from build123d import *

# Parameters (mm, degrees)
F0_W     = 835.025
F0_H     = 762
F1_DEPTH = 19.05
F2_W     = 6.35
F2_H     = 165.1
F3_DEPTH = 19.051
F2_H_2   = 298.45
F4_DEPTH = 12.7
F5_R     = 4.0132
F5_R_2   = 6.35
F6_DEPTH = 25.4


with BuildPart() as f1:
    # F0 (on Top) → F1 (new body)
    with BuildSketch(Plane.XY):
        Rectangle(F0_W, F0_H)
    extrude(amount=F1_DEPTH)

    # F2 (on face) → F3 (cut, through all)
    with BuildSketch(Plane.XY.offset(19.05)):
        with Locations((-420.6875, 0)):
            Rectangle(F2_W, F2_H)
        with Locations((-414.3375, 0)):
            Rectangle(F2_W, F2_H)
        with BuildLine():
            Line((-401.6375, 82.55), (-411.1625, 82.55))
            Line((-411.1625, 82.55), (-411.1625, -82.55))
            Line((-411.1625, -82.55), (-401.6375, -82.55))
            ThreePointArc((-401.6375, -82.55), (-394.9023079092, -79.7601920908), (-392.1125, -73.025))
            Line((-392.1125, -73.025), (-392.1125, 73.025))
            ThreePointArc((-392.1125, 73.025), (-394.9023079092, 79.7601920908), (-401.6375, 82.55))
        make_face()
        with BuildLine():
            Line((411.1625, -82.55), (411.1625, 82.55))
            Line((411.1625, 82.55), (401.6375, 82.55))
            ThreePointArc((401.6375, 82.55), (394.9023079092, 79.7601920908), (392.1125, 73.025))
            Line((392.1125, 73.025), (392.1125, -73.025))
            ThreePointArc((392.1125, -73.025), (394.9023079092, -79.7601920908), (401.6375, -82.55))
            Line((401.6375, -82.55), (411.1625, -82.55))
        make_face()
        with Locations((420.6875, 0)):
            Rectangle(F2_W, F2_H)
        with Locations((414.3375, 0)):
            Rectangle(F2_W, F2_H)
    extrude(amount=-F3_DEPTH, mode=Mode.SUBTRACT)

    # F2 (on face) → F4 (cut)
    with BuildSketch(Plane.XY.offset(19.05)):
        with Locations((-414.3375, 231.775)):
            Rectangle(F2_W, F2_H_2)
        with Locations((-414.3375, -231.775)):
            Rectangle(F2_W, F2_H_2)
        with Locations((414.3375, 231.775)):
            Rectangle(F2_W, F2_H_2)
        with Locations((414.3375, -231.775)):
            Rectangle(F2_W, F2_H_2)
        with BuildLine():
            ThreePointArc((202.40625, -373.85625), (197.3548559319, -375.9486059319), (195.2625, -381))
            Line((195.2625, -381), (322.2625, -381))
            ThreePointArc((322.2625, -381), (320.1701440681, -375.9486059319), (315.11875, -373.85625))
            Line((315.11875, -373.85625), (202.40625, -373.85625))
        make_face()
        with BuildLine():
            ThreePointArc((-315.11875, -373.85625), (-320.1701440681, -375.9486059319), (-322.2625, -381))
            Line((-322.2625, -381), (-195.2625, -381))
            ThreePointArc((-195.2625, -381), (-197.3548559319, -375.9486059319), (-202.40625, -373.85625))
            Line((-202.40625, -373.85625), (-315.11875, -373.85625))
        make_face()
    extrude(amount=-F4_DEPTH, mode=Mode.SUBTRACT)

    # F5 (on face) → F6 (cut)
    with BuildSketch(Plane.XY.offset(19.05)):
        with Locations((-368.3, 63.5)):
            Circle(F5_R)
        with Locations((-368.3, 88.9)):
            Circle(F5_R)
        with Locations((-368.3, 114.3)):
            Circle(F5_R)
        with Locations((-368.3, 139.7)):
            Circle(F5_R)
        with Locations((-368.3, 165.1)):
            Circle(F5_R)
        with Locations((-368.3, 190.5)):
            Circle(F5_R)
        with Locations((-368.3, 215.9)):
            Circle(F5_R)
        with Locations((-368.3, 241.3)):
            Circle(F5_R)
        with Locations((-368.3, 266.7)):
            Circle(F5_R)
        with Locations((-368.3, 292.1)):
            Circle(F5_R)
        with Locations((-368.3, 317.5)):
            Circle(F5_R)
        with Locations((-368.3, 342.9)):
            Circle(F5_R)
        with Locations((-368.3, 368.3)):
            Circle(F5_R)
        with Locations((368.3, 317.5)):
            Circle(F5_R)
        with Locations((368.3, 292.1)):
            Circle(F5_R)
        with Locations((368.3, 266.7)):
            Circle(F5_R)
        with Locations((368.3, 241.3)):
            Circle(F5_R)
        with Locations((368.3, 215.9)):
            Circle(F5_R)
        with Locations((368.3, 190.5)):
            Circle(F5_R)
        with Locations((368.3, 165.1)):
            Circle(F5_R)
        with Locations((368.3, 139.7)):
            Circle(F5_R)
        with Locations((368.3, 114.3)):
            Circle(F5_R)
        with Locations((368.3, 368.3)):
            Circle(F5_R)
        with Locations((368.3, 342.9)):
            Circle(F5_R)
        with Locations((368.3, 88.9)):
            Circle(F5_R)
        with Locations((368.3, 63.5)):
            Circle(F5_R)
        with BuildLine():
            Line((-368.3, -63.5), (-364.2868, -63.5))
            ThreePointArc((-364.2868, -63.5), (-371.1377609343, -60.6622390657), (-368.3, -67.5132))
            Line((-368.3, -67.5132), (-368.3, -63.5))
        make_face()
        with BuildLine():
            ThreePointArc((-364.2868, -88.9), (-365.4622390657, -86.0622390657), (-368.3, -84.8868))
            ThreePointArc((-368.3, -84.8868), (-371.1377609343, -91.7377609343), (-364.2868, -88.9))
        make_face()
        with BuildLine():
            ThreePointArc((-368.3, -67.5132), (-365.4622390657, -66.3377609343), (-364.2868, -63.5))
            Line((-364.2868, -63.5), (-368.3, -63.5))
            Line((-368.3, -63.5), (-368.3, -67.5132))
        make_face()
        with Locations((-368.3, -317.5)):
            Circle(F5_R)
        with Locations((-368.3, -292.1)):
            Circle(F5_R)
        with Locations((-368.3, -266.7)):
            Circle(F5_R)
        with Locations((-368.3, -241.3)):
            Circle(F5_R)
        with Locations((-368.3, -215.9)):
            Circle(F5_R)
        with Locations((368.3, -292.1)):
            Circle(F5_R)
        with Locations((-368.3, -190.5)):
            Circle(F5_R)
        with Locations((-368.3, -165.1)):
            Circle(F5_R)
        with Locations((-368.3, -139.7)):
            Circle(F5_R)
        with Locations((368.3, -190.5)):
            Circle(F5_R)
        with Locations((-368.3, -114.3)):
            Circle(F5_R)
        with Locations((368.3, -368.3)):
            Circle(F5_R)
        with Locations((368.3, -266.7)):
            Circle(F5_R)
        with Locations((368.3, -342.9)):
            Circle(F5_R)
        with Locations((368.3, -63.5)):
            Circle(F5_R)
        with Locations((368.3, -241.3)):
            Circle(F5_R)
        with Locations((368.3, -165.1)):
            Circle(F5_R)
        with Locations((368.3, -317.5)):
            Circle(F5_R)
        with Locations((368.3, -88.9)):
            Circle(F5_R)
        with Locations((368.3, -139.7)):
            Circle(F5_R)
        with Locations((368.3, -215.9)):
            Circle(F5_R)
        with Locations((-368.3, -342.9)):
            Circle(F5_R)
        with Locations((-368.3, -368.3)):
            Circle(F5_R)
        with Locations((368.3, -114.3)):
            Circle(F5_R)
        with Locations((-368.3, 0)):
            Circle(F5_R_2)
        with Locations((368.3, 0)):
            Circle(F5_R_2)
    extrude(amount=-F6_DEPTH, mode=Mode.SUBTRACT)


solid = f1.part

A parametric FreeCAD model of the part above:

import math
import FreeCAD as App
import Part
import Sketcher
from FreeCAD import Vector
Q = App.Units.Quantity


def add_polygon(sketch, points):
    """Adds a closed chain of lines whose ends are joined by coincident constraints."""
    first, n = sketch.GeometryCount, len(points)
    for a, b in zip(points, points[1:] + points[:1]):
        sketch.addGeometry(Part.LineSegment(App.Vector(*a, 0), App.Vector(*b, 0)), False)
    for i in range(n):
        sketch.addConstraint(Sketcher.Constraint("Coincident", first + i, 2, first + (i + 1) % n, 1))

doc = App.newDocument("Part")
body = doc.addObject("PartDesign::Body", "Body")

sketch1 = body.newObject("Sketcher::SketchObject", "Sketch")
sketch1.AttachmentSupport = (doc.getObject("XY_Plane"), [""])
sketch1.MapMode = "FlatFace"
add_polygon(sketch1, [(-418, 381), (-418, -381), (418, -381), (418, 381)])
sketch1.addConstraint(Sketcher.Constraint("Vertical", 0))
sketch1.addConstraint(Sketcher.Constraint("Horizontal", 1))
sketch1.addConstraint(Sketcher.Constraint("Vertical", 2))
sketch1.addConstraint(Sketcher.Constraint("Horizontal", 3))
sketch1.addConstraint(Sketcher.Constraint("Symmetric", 0, 2, 2, 2, -1, 1))
sketch1.addConstraint(Sketcher.Constraint("DistanceY", 0, 2, 0, 1, Q("30 in")))
sketch1.addConstraint(Sketcher.Constraint("DistanceX", 1, 1, 1, 2, Q("32.875 in")))
pad1 = body.newObject("PartDesign::Pad", "Pad")
pad1.Profile = sketch1
pad1.Length = Q("0.75 in")

sketch2 = body.newObject("Sketcher::SketchObject", "Sketch001")
sketch2.AttachmentSupport = (doc.getObject("XY_Plane"), [""])
sketch2.MapMode = "FlatFace"
sketch2.AttachmentOffset = App.Placement(Vector(0, 0, 0.75 * 25.4), App.Rotation())
sketch2.addGeometry(Part.LineSegment(Vector(-424, 83, 0), Vector(-424, -83, 0)), False)
sketch2.addGeometry(Part.LineSegment(Vector(-424, -83, 0), Vector(-402, -83, 0)), False)
sketch2.addGeometry(Part.ArcOfCircle(Part.Circle(Vector(-402, -73, 0), Vector(0, 0, 1), 10), math.radians(-90), math.radians(0)), False)
sketch2.addGeometry(Part.LineSegment(Vector(-392, -73, 0), Vector(-392, 73, 0)), False)
sketch2.addGeometry(Part.ArcOfCircle(Part.Circle(Vector(-402, 73, 0), Vector(0, 0, 1), 10), math.radians(0), math.radians(90)), False)
sketch2.addGeometry(Part.LineSegment(Vector(-402, 83, 0), Vector(-424, 83, 0)), False)
sketch2.addGeometry(Part.ArcOfCircle(Part.Circle(Vector(402, 73, 0), Vector(0, 0, 1), 10), math.radians(90), math.radians(180)), False)
sketch2.addGeometry(Part.LineSegment(Vector(392, 73, 0), Vector(392, -73, 0)), False)
sketch2.addGeometry(Part.ArcOfCircle(Part.Circle(Vector(402, -73, 0), Vector(0, 0, 1), 10), math.radians(180), math.radians(270)), False)
sketch2.addGeometry(Part.LineSegment(Vector(402, -83, 0), Vector(424, -83, 0)), False)
sketch2.addGeometry(Part.LineSegment(Vector(424, -83, 0), Vector(424, 83, 0)), False)
sketch2.addGeometry(Part.LineSegment(Vector(424, 83, 0), Vector(402, 83, 0)), False)
sketch2.addConstraint(Sketcher.Constraint("Coincident", 0, 2, 1, 1))
sketch2.addConstraint(Sketcher.Constraint("Tangent", 1, 2, 2, 1))
sketch2.addConstraint(Sketcher.Constraint("Tangent", 2, 2, 3, 1))
sketch2.addConstraint(Sketcher.Constraint("Tangent", 3, 2, 4, 1))
sketch2.addConstraint(Sketcher.Constraint("Tangent", 4, 2, 5, 1))
sketch2.addConstraint(Sketcher.Constraint("Coincident", 5, 2, 0, 1))
sketch2.addConstraint(Sketcher.Constraint("Tangent", 6, 2, 7, 1))
sketch2.addConstraint(Sketcher.Constraint("Tangent", 7, 2, 8, 1))
sketch2.addConstraint(Sketcher.Constraint("Tangent", 8, 2, 9, 1))
sketch2.addConstraint(Sketcher.Constraint("Coincident", 9, 2, 10, 1))
sketch2.addConstraint(Sketcher.Constraint("Coincident", 10, 2, 11, 1))
sketch2.addConstraint(Sketcher.Constraint("Tangent", 11, 2, 6, 1))
sketch2.addConstraint(Sketcher.Constraint("Vertical", 0))
sketch2.addConstraint(Sketcher.Constraint("Horizontal", 1))
sketch2.addConstraint(Sketcher.Constraint("Vertical", 3))
sketch2.addConstraint(Sketcher.Constraint("Horizontal", 5))
sketch2.addConstraint(Sketcher.Constraint("Vertical", 7))
sketch2.addConstraint(Sketcher.Constraint("Horizontal", 9))
sketch2.addConstraint(Sketcher.Constraint("Vertical", 10))
sketch2.addConstraint(Sketcher.Constraint("Horizontal", 11))
sketch2.addConstraint(Sketcher.Constraint("Equal", 2, 4))
sketch2.addConstraint(Sketcher.Constraint("Equal", 4, 6))
sketch2.addConstraint(Sketcher.Constraint("Equal", 6, 8))
sketch2.addConstraint(Sketcher.Constraint("Symmetric", 2, 3, 6, 3, -1, 1))
sketch2.addConstraint(Sketcher.Constraint("Symmetric", 5, 2, 9, 2, -1, 1))
sketch2.addConstraint(Sketcher.Constraint("Horizontal", 4, 3, 6, 3))
sketch2.addConstraint(Sketcher.Constraint("DistanceY", 0, 2, 0, 1, Q("6.5 in")))
sketch2.addConstraint(Sketcher.Constraint("Radius", 2, Q("0.375 in")))
sketch2.addConstraint(Sketcher.Constraint("DistanceX", 0, 2, 8, 3, Q("32.5 in")))
sketch2.addConstraint(Sketcher.Constraint("DistanceX", 1, 1, 1, 2, Q("0.875 in")))
pocket1 = body.newObject("PartDesign::Pocket", "Pocket")
pocket1.Profile = sketch2
pocket1.Type = "ThroughAll"

sketch3 = body.newObject("Sketcher::SketchObject", "Sketch002")
sketch3.AttachmentSupport = (doc.getObject("XY_Plane"), [""])
sketch3.MapMode = "FlatFace"
sketch3.AttachmentOffset = App.Placement(Vector(0, 0, 0.75 * 25.4), App.Rotation())
add_polygon(sketch3, [(-418, 381), (-418, 83), (-411, 83), (-411, 381)])
add_polygon(sketch3, [(-418, -83), (-418, -381), (-411, -381), (-411, -83)])
add_polygon(sketch3, [(411, 381), (411, 83), (418, 83), (418, 381)])
add_polygon(sketch3, [(411, -83), (411, -381), (418, -381), (418, -83)])
sketch3.addGeometry(Part.ArcOfCircle(Part.Circle(Vector(202, -381, 0), Vector(0, 0, 1), 7), math.radians(90), math.radians(180)), False)
sketch3.addGeometry(Part.LineSegment(Vector(195, -381, 0), Vector(322, -381, 0)), False)
sketch3.addGeometry(Part.ArcOfCircle(Part.Circle(Vector(315, -381, 0), Vector(0, 0, 1), 7), math.radians(0), math.radians(90)), False)
sketch3.addGeometry(Part.LineSegment(Vector(315, -374, 0), Vector(202, -374, 0)), False)
sketch3.addGeometry(Part.ArcOfCircle(Part.Circle(Vector(-315, -381, 0), Vector(0, 0, 1), 7), math.radians(90), math.radians(180)), False)
sketch3.addGeometry(Part.LineSegment(Vector(-322, -381, 0), Vector(-195, -381, 0)), False)
sketch3.addGeometry(Part.ArcOfCircle(Part.Circle(Vector(-202, -381, 0), Vector(0, 0, 1), 7), math.radians(0), math.radians(90)), False)
sketch3.addGeometry(Part.LineSegment(Vector(-202, -374, 0), Vector(-315, -374, 0)), False)
sketch3.addConstraint(Sketcher.Constraint("Coincident", 16, 2, 17, 1))
sketch3.addConstraint(Sketcher.Constraint("Coincident", 17, 2, 18, 1))
sketch3.addConstraint(Sketcher.Constraint("Tangent", 18, 2, 19, 1))
sketch3.addConstraint(Sketcher.Constraint("Tangent", 19, 2, 16, 1))
sketch3.addConstraint(Sketcher.Constraint("Coincident", 20, 2, 21, 1))
sketch3.addConstraint(Sketcher.Constraint("Coincident", 21, 2, 22, 1))
sketch3.addConstraint(Sketcher.Constraint("Tangent", 22, 2, 23, 1))
sketch3.addConstraint(Sketcher.Constraint("Tangent", 23, 2, 20, 1))
sketch3.addConstraint(Sketcher.Constraint("Vertical", 0))
sketch3.addConstraint(Sketcher.Constraint("Horizontal", 1))
sketch3.addConstraint(Sketcher.Constraint("Vertical", 2))
sketch3.addConstraint(Sketcher.Constraint("Horizontal", 3))
sketch3.addConstraint(Sketcher.Constraint("Vertical", 4))
sketch3.addConstraint(Sketcher.Constraint("Horizontal", 5))
sketch3.addConstraint(Sketcher.Constraint("Vertical", 6))
sketch3.addConstraint(Sketcher.Constraint("Horizontal", 7))
sketch3.addConstraint(Sketcher.Constraint("Vertical", 8))
sketch3.addConstraint(Sketcher.Constraint("Horizontal", 9))
sketch3.addConstraint(Sketcher.Constraint("Vertical", 10))
sketch3.addConstraint(Sketcher.Constraint("Horizontal", 11))
sketch3.addConstraint(Sketcher.Constraint("Vertical", 12))
sketch3.addConstraint(Sketcher.Constraint("Horizontal", 13))
sketch3.addConstraint(Sketcher.Constraint("Vertical", 14))
sketch3.addConstraint(Sketcher.Constraint("Horizontal", 15))
sketch3.addConstraint(Sketcher.Constraint("Horizontal", 17))
sketch3.addConstraint(Sketcher.Constraint("Horizontal", 19))
sketch3.addConstraint(Sketcher.Constraint("Horizontal", 21))
sketch3.addConstraint(Sketcher.Constraint("Horizontal", 23))
sketch3.addConstraint(Sketcher.Constraint("Equal", 16, 18))
sketch3.addConstraint(Sketcher.Constraint("Equal", 18, 20))
sketch3.addConstraint(Sketcher.Constraint("Equal", 20, 22))
sketch3.addConstraint(Sketcher.Constraint("Symmetric", 6, 2, 8, 2, -1, 1))
sketch3.addConstraint(Sketcher.Constraint("Symmetric", 4, 2, 10, 2, -1, 1))
sketch3.addConstraint(Sketcher.Constraint("Symmetric", 2, 2, 12, 2, -1, 1))
sketch3.addConstraint(Sketcher.Constraint("Symmetric", 0, 2, 14, 2, -1, 1))
sketch3.addConstraint(Sketcher.Constraint("Symmetric", 18, 3, 20, 3, -2))
sketch3.addConstraint(Sketcher.Constraint("Symmetric", 1, 2, 8, 2, -2))
sketch3.addConstraint(Sketcher.Constraint("Symmetric", 3, 2, 10, 2, -2))
sketch3.addConstraint(Sketcher.Constraint("Symmetric", 16, 2, 21, 2, -2))
sketch3.addConstraint(Sketcher.Constraint("Horizontal", 22, 3, 4, 2))
sketch3.addConstraint(Sketcher.Constraint("Horizontal", 13, 2, 16, 2))
sketch3.addConstraint(Sketcher.Constraint("DistanceX", 17, 1, 17, 2, Q("5 in")))
sketch3.addConstraint(Sketcher.Constraint("DistanceY", 16, 3, -1, 1, Q("15 in")))
sketch3.addConstraint(Sketcher.Constraint("Radius", 16, Q("0.28125 in")))
sketch3.addConstraint(Sketcher.Constraint("DistanceX", 1, 1, 1, 2, Q("0.25 in")))
sketch3.addConstraint(Sketcher.Constraint("DistanceY", 0, 2, 0, 1, Q("11.75 in")))
sketch3.addConstraint(Sketcher.Constraint("DistanceX", 16, 2, 12, 2, Q("8.5 in")))
sketch3.addConstraint(Sketcher.Constraint("DistanceX", -1, 1, 16, 3, Q("7.96875 in")))
pocket2 = body.newObject("PartDesign::Pocket", "Pocket001")
pocket2.Profile = sketch3
pocket2.Length = Q("0.5 in")

sketch4 = body.newObject("Sketcher::SketchObject", "Sketch003")
sketch4.AttachmentSupport = (doc.getObject("XY_Plane"), [""])
sketch4.MapMode = "FlatFace"
sketch4.AttachmentOffset = App.Placement(Vector(0, 0, 0.75 * 25.4), App.Rotation())
sketch4.addGeometry(Part.Circle(Vector(-368.3, 63.5, 0), Vector(0, 0, 1), 4), False)
sketch4.addGeometry(Part.Circle(Vector(-368.3, 88.9, 0), Vector(0, 0, 1), 4), False)
sketch4.addGeometry(Part.Circle(Vector(-368.3, 114.3, 0), Vector(0, 0, 1), 4), False)
sketch4.addGeometry(Part.Circle(Vector(-368.3, 139.7, 0), Vector(0, 0, 1), 4), False)
sketch4.addGeometry(Part.Circle(Vector(-368.3, 165.1, 0), Vector(0, 0, 1), 4), False)
sketch4.addGeometry(Part.Circle(Vector(-368.3, 190.5, 0), Vector(0, 0, 1), 4), False)
sketch4.addGeometry(Part.Circle(Vector(-368.3, 215.9, 0), Vector(0, 0, 1), 4), False)
sketch4.addGeometry(Part.Circle(Vector(-368.3, 241.3, 0), Vector(0, 0, 1), 4), False)
sketch4.addGeometry(Part.Circle(Vector(-368.3, 266.7, 0), Vector(0, 0, 1), 4), False)
sketch4.addGeometry(Part.Circle(Vector(-368.3, 292.1, 0), Vector(0, 0, 1), 4), False)
sketch4.addGeometry(Part.Circle(Vector(-368.3, 317.5, 0), Vector(0, 0, 1), 4), False)
sketch4.addGeometry(Part.Circle(Vector(-368.3, 342.9, 0), Vector(0, 0, 1), 4), False)
sketch4.addGeometry(Part.Circle(Vector(-368.3, 368.3, 0), Vector(0, 0, 1), 4), False)
sketch4.addGeometry(Part.Circle(Vector(368.3, 317.5, 0), Vector(0, 0, 1), 4), False)
sketch4.addGeometry(Part.Circle(Vector(368.3, 292.1, 0), Vector(0, 0, 1), 4), False)
sketch4.addGeometry(Part.Circle(Vector(368.3, 266.7, 0), Vector(0, 0, 1), 4), False)
sketch4.addGeometry(Part.Circle(Vector(368.3, 241.3, 0), Vector(0, 0, 1), 4), False)
sketch4.addGeometry(Part.Circle(Vector(368.3, 215.9, 0), Vector(0, 0, 1), 4), False)
sketch4.addGeometry(Part.Circle(Vector(368.3, 190.5, 0), Vector(0, 0, 1), 4), False)
sketch4.addGeometry(Part.Circle(Vector(368.3, 165.1, 0), Vector(0, 0, 1), 4), False)
sketch4.addGeometry(Part.Circle(Vector(368.3, 139.7, 0), Vector(0, 0, 1), 4), False)
sketch4.addGeometry(Part.Circle(Vector(368.3, 114.3, 0), Vector(0, 0, 1), 4), False)
sketch4.addGeometry(Part.Circle(Vector(368.3, 368.3, 0), Vector(0, 0, 1), 4), False)
sketch4.addGeometry(Part.Circle(Vector(368.3, 342.9, 0), Vector(0, 0, 1), 4), False)
sketch4.addGeometry(Part.Circle(Vector(368.3, 88.9, 0), Vector(0, 0, 1), 4), False)
sketch4.addGeometry(Part.Circle(Vector(368.3, 63.5, 0), Vector(0, 0, 1), 4), False)
sketch4.addGeometry(Part.ArcOfCircle(Part.Circle(Vector(-368.3, -63.5, 0), Vector(0, 0, 1), 4), math.radians(0), math.radians(270)), False)
sketch4.addGeometry(Part.ArcOfCircle(Part.Circle(Vector(-368.3, -63.5, 0), Vector(0, 0, 1), 4), math.radians(-90), math.radians(0)), False)
sketch4.addGeometry(Part.ArcOfCircle(Part.Circle(Vector(-368.3, -88.9, 0), Vector(0, 0, 1), 4), math.radians(0), math.radians(90)), False)
sketch4.addGeometry(Part.ArcOfCircle(Part.Circle(Vector(-368.3, -88.9, 0), Vector(0, 0, 1), 4), math.radians(90), math.radians(360)), False)
sketch4.addGeometry(Part.Circle(Vector(-368.3, -317.5, 0), Vector(0, 0, 1), 4), False)
sketch4.addGeometry(Part.Circle(Vector(-368.3, -292.1, 0), Vector(0, 0, 1), 4), False)
sketch4.addGeometry(Part.Circle(Vector(-368.3, -266.7, 0), Vector(0, 0, 1), 4), False)
sketch4.addGeometry(Part.Circle(Vector(-368.3, -241.3, 0), Vector(0, 0, 1), 4), False)
sketch4.addGeometry(Part.Circle(Vector(-368.3, -215.9, 0), Vector(0, 0, 1), 4), False)
sketch4.addGeometry(Part.Circle(Vector(368.3, -292.1, 0), Vector(0, 0, 1), 4), False)
sketch4.addGeometry(Part.Circle(Vector(-368.3, -190.5, 0), Vector(0, 0, 1), 4), False)
sketch4.addGeometry(Part.Circle(Vector(-368.3, -165.1, 0), Vector(0, 0, 1), 4), False)
sketch4.addGeometry(Part.Circle(Vector(-368.3, -139.7, 0), Vector(0, 0, 1), 4), False)
sketch4.addGeometry(Part.Circle(Vector(368.3, -190.5, 0), Vector(0, 0, 1), 4), False)
sketch4.addGeometry(Part.Circle(Vector(-368.3, -114.3, 0), Vector(0, 0, 1), 4), False)
sketch4.addGeometry(Part.Circle(Vector(368.3, -368.3, 0), Vector(0, 0, 1), 4), False)
sketch4.addGeometry(Part.Circle(Vector(368.3, -266.7, 0), Vector(0, 0, 1), 4), False)
sketch4.addGeometry(Part.Circle(Vector(368.3, -342.9, 0), Vector(0, 0, 1), 4), False)
sketch4.addGeometry(Part.Circle(Vector(368.3, -63.5, 0), Vector(0, 0, 1), 4), False)
sketch4.addGeometry(Part.Circle(Vector(368.3, -241.3, 0), Vector(0, 0, 1), 4), False)
sketch4.addGeometry(Part.Circle(Vector(368.3, -165.1, 0), Vector(0, 0, 1), 4), False)
sketch4.addGeometry(Part.Circle(Vector(368.3, -317.5, 0), Vector(0, 0, 1), 4), False)
sketch4.addGeometry(Part.Circle(Vector(368.3, -88.9, 0), Vector(0, 0, 1), 4), False)
sketch4.addGeometry(Part.Circle(Vector(368.3, -139.7, 0), Vector(0, 0, 1), 4), False)
sketch4.addGeometry(Part.Circle(Vector(368.3, -215.9, 0), Vector(0, 0, 1), 4), False)
sketch4.addGeometry(Part.Circle(Vector(-368.3, -342.9, 0), Vector(0, 0, 1), 4), False)
sketch4.addGeometry(Part.Circle(Vector(-368.3, -368.3, 0), Vector(0, 0, 1), 4), False)
sketch4.addGeometry(Part.Circle(Vector(368.3, -114.3, 0), Vector(0, 0, 1), 4), False)
sketch4.addGeometry(Part.Circle(Vector(-368.3, 0, 0), Vector(0, 0, 1), 6.3), False)
sketch4.addGeometry(Part.Circle(Vector(368.3, 0, 0), Vector(0, 0, 1), 6.3), False)
sketch4.addConstraint(Sketcher.Constraint("Tangent", 26, 1, 27, 2))
sketch4.addConstraint(Sketcher.Constraint("Coincident", 27, 1, 26, 2))
sketch4.addConstraint(Sketcher.Constraint("Tangent", 28, 1, 29, 2))
sketch4.addConstraint(Sketcher.Constraint("Coincident", 29, 1, 28, 2))
sketch4.addConstraint(Sketcher.Constraint("Equal", 0, 1))
sketch4.addConstraint(Sketcher.Constraint("Equal", 1, 2))
sketch4.addConstraint(Sketcher.Constraint("Equal", 2, 3))
sketch4.addConstraint(Sketcher.Constraint("Equal", 3, 4))
sketch4.addConstraint(Sketcher.Constraint("Equal", 4, 5))
sketch4.addConstraint(Sketcher.Constraint("Equal", 5, 6))
sketch4.addConstraint(Sketcher.Constraint("Equal", 6, 7))
sketch4.addConstraint(Sketcher.Constraint("Equal", 7, 8))
sketch4.addConstraint(Sketcher.Constraint("Equal", 8, 9))
sketch4.addConstraint(Sketcher.Constraint("Equal", 9, 10))
sketch4.addConstraint(Sketcher.Constraint("Equal", 10, 11))
sketch4.addConstraint(Sketcher.Constraint("Equal", 11, 12))
sketch4.addConstraint(Sketcher.Constraint("Equal", 12, 13))
sketch4.addConstraint(Sketcher.Constraint("Equal", 13, 14))
sketch4.addConstraint(Sketcher.Constraint("Equal", 14, 15))
sketch4.addConstraint(Sketcher.Constraint("Equal", 15, 16))
sketch4.addConstraint(Sketcher.Constraint("Equal", 16, 17))
sketch4.addConstraint(Sketcher.Constraint("Equal", 17, 18))
sketch4.addConstraint(Sketcher.Constraint("Equal", 18, 19))
sketch4.addConstraint(Sketcher.Constraint("Equal", 19, 20))
sketch4.addConstraint(Sketcher.Constraint("Equal", 20, 21))
sketch4.addConstraint(Sketcher.Constraint("Equal", 21, 22))
sketch4.addConstraint(Sketcher.Constraint("Equal", 22, 23))
sketch4.addConstraint(Sketcher.Constraint("Equal", 23, 24))
sketch4.addConstraint(Sketcher.Constraint("Equal", 24, 25))
sketch4.addConstraint(Sketcher.Constraint("Equal", 25, 26))
sketch4.addConstraint(Sketcher.Constraint("Equal", 27, 28))
sketch4.addConstraint(Sketcher.Constraint("Equal", 29, 30))
sketch4.addConstraint(Sketcher.Constraint("Equal", 30, 31))
sketch4.addConstraint(Sketcher.Constraint("Equal", 31, 32))
sketch4.addConstraint(Sketcher.Constraint("Equal", 32, 33))
sketch4.addConstraint(Sketcher.Constraint("Equal", 33, 34))
sketch4.addConstraint(Sketcher.Constraint("Equal", 34, 35))
sketch4.addConstraint(Sketcher.Constraint("Equal", 35, 36))
sketch4.addConstraint(Sketcher.Constraint("Equal", 36, 37))
sketch4.addConstraint(Sketcher.Constraint("Equal", 37, 38))
sketch4.addConstraint(Sketcher.Constraint("Equal", 38, 39))
sketch4.addConstraint(Sketcher.Constraint("Equal", 39, 40))
sketch4.addConstraint(Sketcher.Constraint("Equal", 40, 41))
sketch4.addConstraint(Sketcher.Constraint("Equal", 41, 42))
sketch4.addConstraint(Sketcher.Constraint("Equal", 42, 43))
sketch4.addConstraint(Sketcher.Constraint("Equal", 43, 44))
sketch4.addConstraint(Sketcher.Constraint("Equal", 44, 45))
sketch4.addConstraint(Sketcher.Constraint("Equal", 45, 46))
sketch4.addConstraint(Sketcher.Constraint("Equal", 46, 47))
sketch4.addConstraint(Sketcher.Constraint("Equal", 47, 48))
sketch4.addConstraint(Sketcher.Constraint("Equal", 48, 49))
sketch4.addConstraint(Sketcher.Constraint("Equal", 49, 50))
sketch4.addConstraint(Sketcher.Constraint("Equal", 50, 51))
sketch4.addConstraint(Sketcher.Constraint("Equal", 51, 52))
sketch4.addConstraint(Sketcher.Constraint("Equal", 52, 53))
sketch4.addConstraint(Sketcher.Constraint("Equal", 54, 55))
sketch4.addConstraint(Sketcher.Constraint("Symmetric", 25, 3, 26, 3, -1, 1))
sketch4.addConstraint(Sketcher.Constraint("Symmetric", 24, 3, 28, 3, -1, 1))
sketch4.addConstraint(Sketcher.Constraint("Symmetric", 13, 3, 30, 3, -1, 1))
sketch4.addConstraint(Sketcher.Constraint("Symmetric", 14, 3, 31, 3, -1, 1))
sketch4.addConstraint(Sketcher.Constraint("Symmetric", 15, 3, 32, 3, -1, 1))
sketch4.addConstraint(Sketcher.Constraint("Symmetric", 16, 3, 33, 3, -1, 1))
sketch4.addConstraint(Sketcher.Constraint("Symmetric", 17, 3, 34, 3, -1, 1))
sketch4.addConstraint(Sketcher.Constraint("Symmetric", 9, 3, 35, 3, -1, 1))
sketch4.addConstraint(Sketcher.Constraint("Symmetric", 18, 3, 36, 3, -1, 1))
sketch4.addConstraint(Sketcher.Constraint("Symmetric", 19, 3, 37, 3, -1, 1))
sketch4.addConstraint(Sketcher.Constraint("Symmetric", 20, 3, 38, 3, -1, 1))
sketch4.addConstraint(Sketcher.Constraint("Symmetric", 5, 3, 39, 3, -1, 1))
sketch4.addConstraint(Sketcher.Constraint("Symmetric", 21, 3, 40, 3, -1, 1))
sketch4.addConstraint(Sketcher.Constraint("Symmetric", 12, 3, 41, 3, -1, 1))
sketch4.addConstraint(Sketcher.Constraint("Symmetric", 8, 3, 42, 3, -1, 1))
sketch4.addConstraint(Sketcher.Constraint("Symmetric", 11, 3, 43, 3, -1, 1))
sketch4.addConstraint(Sketcher.Constraint("Symmetric", 0, 3, 44, 3, -1, 1))
sketch4.addConstraint(Sketcher.Constraint("Symmetric", 7, 3, 45, 3, -1, 1))
sketch4.addConstraint(Sketcher.Constraint("Symmetric", 4, 3, 46, 3, -1, 1))
sketch4.addConstraint(Sketcher.Constraint("Symmetric", 10, 3, 47, 3, -1, 1))
sketch4.addConstraint(Sketcher.Constraint("Symmetric", 1, 3, 48, 3, -1, 1))
sketch4.addConstraint(Sketcher.Constraint("Symmetric", 3, 3, 49, 3, -1, 1))
sketch4.addConstraint(Sketcher.Constraint("Symmetric", 6, 3, 50, 3, -1, 1))
sketch4.addConstraint(Sketcher.Constraint("Symmetric", 23, 3, 51, 3, -1, 1))
sketch4.addConstraint(Sketcher.Constraint("Symmetric", 22, 3, 52, 3, -1, 1))
sketch4.addConstraint(Sketcher.Constraint("Symmetric", 2, 3, 53, 3, -1, 1))
sketch4.addConstraint(Sketcher.Constraint("Symmetric", 54, 3, 55, 3, -1, 1))
sketch4.addConstraint(Sketcher.Constraint("Symmetric", 10, 3, 13, 3, -2))
sketch4.addConstraint(Sketcher.Constraint("Symmetric", 9, 3, 14, 3, -2))
sketch4.addConstraint(Sketcher.Constraint("Symmetric", 8, 3, 15, 3, -2))
sketch4.addConstraint(Sketcher.Constraint("Symmetric", 7, 3, 16, 3, -2))
sketch4.addConstraint(Sketcher.Constraint("Symmetric", 6, 3, 17, 3, -2))
sketch4.addConstraint(Sketcher.Constraint("Symmetric", 5, 3, 18, 3, -2))
sketch4.addConstraint(Sketcher.Constraint("Symmetric", 4, 3, 19, 3, -2))
sketch4.addConstraint(Sketcher.Constraint("Symmetric", 3, 3, 20, 3, -2))
sketch4.addConstraint(Sketcher.Constraint("Symmetric", 2, 3, 21, 3, -2))
sketch4.addConstraint(Sketcher.Constraint("Symmetric", 12, 3, 22, 3, -2))
sketch4.addConstraint(Sketcher.Constraint("Symmetric", 11, 3, 23, 3, -2))
sketch4.addConstraint(Sketcher.Constraint("Symmetric", 1, 3, 24, 3, -2))
sketch4.addConstraint(Sketcher.Constraint("Symmetric", 0, 3, 25, 3, -2))
sketch4.addConstraint(Sketcher.Constraint("PointOnObject", 54, 3, -1))
sketch4.addConstraint(Sketcher.Constraint("Horizontal", 44, 3, 26, 1))
sketch4.addConstraint(Sketcher.Constraint("Horizontal", 48, 3, 28, 1))
sketch4.addConstraint(Sketcher.Constraint("Vertical", 0, 3, 1, 3))
sketch4.addConstraint(Sketcher.Constraint("Vertical", 1, 3, 2, 3))
sketch4.addConstraint(Sketcher.Constraint("Vertical", 2, 3, 3, 3))
sketch4.addConstraint(Sketcher.Constraint("Vertical", 3, 3, 4, 3))
sketch4.addConstraint(Sketcher.Constraint("Vertical", 4, 3, 5, 3))
sketch4.addConstraint(Sketcher.Constraint("Vertical", 5, 3, 6, 3))
sketch4.addConstraint(Sketcher.Constraint("Vertical", 6, 3, 7, 3))
sketch4.addConstraint(Sketcher.Constraint("Vertical", 7, 3, 8, 3))
sketch4.addConstraint(Sketcher.Constraint("Vertical", 8, 3, 9, 3))
sketch4.addConstraint(Sketcher.Constraint("Vertical", 9, 3, 10, 3))
sketch4.addConstraint(Sketcher.Constraint("Vertical", 10, 3, 11, 3))
sketch4.addConstraint(Sketcher.Constraint("Vertical", 11, 3, 12, 3))
sketch4.addConstraint(Sketcher.Constraint("Vertical", 52, 3, 54, 3))
sketch4.addConstraint(Sketcher.Constraint("Vertical", 54, 3, 27, 1))
sketch4.addConstraint(Sketcher.Constraint("Vertical", 27, 1, 29, 1))
sketch4.addConstraint(Sketcher.Constraint("Diameter", 54, Q("0.5 in")))
sketch4.addConstraint(Sketcher.Constraint("Diameter", 0, Q("0.316 in")))
sketch4.addConstraint(Sketcher.Constraint("DistanceY", 0, 3, 1, 3, Q("1 in")))
sketch4.addConstraint(Sketcher.Constraint("DistanceY", 1, 3, 2, 3, Q("1 in")))
sketch4.addConstraint(Sketcher.Constraint("DistanceY", 2, 3, 3, 3, Q("1 in")))
sketch4.addConstraint(Sketcher.Constraint("DistanceY", 3, 3, 4, 3, Q("1 in")))
sketch4.addConstraint(Sketcher.Constraint("DistanceY", 4, 3, 5, 3, Q("1 in")))
sketch4.addConstraint(Sketcher.Constraint("DistanceY", 5, 3, 6, 3, Q("1 in")))
sketch4.addConstraint(Sketcher.Constraint("DistanceY", 6, 3, 7, 3, Q("1 in")))
sketch4.addConstraint(Sketcher.Constraint("DistanceY", 7, 3, 8, 3, Q("1 in")))
sketch4.addConstraint(Sketcher.Constraint("DistanceY", 8, 3, 9, 3, Q("1 in")))
sketch4.addConstraint(Sketcher.Constraint("DistanceY", 9, 3, 10, 3, Q("1 in")))
sketch4.addConstraint(Sketcher.Constraint("DistanceY", 10, 3, 11, 3, Q("1 in")))
sketch4.addConstraint(Sketcher.Constraint("DistanceY", 11, 3, 12, 3, Q("1 in")))
sketch4.addConstraint(Sketcher.Constraint("DistanceX", 10, 3, 13, 3, Q("29 in")))
sketch4.addConstraint(Sketcher.Constraint("DistanceY", 26, 3, 0, 3, Q("5 in")))
pocket3 = body.newObject("PartDesign::Pocket", "Pocket002")
pocket3.Profile = sketch4
pocket3.Length = Q("1 in")

doc.recompute()
